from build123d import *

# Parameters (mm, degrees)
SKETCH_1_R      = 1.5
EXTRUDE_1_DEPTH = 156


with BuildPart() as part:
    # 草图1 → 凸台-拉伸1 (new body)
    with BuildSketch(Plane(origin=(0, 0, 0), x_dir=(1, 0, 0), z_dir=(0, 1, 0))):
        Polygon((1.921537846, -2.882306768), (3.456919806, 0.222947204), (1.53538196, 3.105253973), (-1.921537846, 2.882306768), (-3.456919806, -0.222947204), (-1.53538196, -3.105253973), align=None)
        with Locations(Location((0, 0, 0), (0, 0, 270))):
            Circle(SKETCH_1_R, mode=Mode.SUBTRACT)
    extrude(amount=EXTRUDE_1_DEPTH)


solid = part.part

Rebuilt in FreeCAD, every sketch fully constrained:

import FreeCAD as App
import Part
import Sketcher


def add_polygon(sketch, points):
    """Adds a closed chain of lines whose ends are joined by coincident constraints."""
    first, n = sketch.GeometryCount, len(points)
    for a, b in zip(points, points[1:] + points[:1]):
        sketch.addGeometry(Part.LineSegment(App.Vector(*a, 0), App.Vector(*b, 0)), False)
    for i in range(n):
        sketch.addConstraint(Sketcher.Constraint("Coincident", first + i, 2, first + (i + 1) % n, 1))

doc = App.newDocument("Part")
body = doc.addObject("PartDesign::Body", "Body")

# Sketch on XZ plane
sketch1 = body.newObject("Sketcher::SketchObject", "Sketch")
sketch1.AttachmentSupport = (doc.getObject("XZ_Plane"), [""])
sketch1.MapMode = "FlatFace"
add_polygon(sketch1, [(1.9, 2.9), (3.5, -0.2), (1.5, -3.1), (-1.9, -2.9), (-3.5, 0.2), (-1.5, 3.1)])  # lines 0-5
sketch1.addGeometry(Part.Circle(App.Vector(0, 0, 0), App.Vector(0, 0, 1), 1.5), False)  # 6
sketch1.addConstraint(Sketcher.Constraint("Coincident", 6, 3, -1, 1))
sketch1.addConstraint(Sketcher.Constraint("Symmetric", 0, 2, 3, 2, -1, 1))
sketch1.addConstraint(Sketcher.Constraint("Symmetric", 1, 2, 4, 2, -1, 1))
sketch1.addConstraint(Sketcher.Constraint("Symmetric", 2, 2, 5, 2, -1, 1))
sketch1.addConstraint(Sketcher.Constraint("Equal", 0, 1))
sketch1.addConstraint(Sketcher.Constraint("Equal", 1, 2))
sketch1.addConstraint(Sketcher.Constraint("Diameter", 6, 3.0))
sketch1.addConstraint(Sketcher.Constraint("Distance", 0, 3.464102))
sketch1.addConstraint(Sketcher.Constraint("DistanceX", 3, 2, 1, 2, 4.992302))
sketch1.addConstraint(Sketcher.Constraint("DistanceY", 1, 2, 3, 2, 3.328201))
sketch1.addConstraint(Sketcher.Constraint("DistanceX", -1, 1, 0, 2, 3.45692))
pad1 = body.newObject("PartDesign::Pad", "Pad")
pad1.Profile = sketch1
pad1.Length = 156
pad1.Reversed = True

doc.recompute()
